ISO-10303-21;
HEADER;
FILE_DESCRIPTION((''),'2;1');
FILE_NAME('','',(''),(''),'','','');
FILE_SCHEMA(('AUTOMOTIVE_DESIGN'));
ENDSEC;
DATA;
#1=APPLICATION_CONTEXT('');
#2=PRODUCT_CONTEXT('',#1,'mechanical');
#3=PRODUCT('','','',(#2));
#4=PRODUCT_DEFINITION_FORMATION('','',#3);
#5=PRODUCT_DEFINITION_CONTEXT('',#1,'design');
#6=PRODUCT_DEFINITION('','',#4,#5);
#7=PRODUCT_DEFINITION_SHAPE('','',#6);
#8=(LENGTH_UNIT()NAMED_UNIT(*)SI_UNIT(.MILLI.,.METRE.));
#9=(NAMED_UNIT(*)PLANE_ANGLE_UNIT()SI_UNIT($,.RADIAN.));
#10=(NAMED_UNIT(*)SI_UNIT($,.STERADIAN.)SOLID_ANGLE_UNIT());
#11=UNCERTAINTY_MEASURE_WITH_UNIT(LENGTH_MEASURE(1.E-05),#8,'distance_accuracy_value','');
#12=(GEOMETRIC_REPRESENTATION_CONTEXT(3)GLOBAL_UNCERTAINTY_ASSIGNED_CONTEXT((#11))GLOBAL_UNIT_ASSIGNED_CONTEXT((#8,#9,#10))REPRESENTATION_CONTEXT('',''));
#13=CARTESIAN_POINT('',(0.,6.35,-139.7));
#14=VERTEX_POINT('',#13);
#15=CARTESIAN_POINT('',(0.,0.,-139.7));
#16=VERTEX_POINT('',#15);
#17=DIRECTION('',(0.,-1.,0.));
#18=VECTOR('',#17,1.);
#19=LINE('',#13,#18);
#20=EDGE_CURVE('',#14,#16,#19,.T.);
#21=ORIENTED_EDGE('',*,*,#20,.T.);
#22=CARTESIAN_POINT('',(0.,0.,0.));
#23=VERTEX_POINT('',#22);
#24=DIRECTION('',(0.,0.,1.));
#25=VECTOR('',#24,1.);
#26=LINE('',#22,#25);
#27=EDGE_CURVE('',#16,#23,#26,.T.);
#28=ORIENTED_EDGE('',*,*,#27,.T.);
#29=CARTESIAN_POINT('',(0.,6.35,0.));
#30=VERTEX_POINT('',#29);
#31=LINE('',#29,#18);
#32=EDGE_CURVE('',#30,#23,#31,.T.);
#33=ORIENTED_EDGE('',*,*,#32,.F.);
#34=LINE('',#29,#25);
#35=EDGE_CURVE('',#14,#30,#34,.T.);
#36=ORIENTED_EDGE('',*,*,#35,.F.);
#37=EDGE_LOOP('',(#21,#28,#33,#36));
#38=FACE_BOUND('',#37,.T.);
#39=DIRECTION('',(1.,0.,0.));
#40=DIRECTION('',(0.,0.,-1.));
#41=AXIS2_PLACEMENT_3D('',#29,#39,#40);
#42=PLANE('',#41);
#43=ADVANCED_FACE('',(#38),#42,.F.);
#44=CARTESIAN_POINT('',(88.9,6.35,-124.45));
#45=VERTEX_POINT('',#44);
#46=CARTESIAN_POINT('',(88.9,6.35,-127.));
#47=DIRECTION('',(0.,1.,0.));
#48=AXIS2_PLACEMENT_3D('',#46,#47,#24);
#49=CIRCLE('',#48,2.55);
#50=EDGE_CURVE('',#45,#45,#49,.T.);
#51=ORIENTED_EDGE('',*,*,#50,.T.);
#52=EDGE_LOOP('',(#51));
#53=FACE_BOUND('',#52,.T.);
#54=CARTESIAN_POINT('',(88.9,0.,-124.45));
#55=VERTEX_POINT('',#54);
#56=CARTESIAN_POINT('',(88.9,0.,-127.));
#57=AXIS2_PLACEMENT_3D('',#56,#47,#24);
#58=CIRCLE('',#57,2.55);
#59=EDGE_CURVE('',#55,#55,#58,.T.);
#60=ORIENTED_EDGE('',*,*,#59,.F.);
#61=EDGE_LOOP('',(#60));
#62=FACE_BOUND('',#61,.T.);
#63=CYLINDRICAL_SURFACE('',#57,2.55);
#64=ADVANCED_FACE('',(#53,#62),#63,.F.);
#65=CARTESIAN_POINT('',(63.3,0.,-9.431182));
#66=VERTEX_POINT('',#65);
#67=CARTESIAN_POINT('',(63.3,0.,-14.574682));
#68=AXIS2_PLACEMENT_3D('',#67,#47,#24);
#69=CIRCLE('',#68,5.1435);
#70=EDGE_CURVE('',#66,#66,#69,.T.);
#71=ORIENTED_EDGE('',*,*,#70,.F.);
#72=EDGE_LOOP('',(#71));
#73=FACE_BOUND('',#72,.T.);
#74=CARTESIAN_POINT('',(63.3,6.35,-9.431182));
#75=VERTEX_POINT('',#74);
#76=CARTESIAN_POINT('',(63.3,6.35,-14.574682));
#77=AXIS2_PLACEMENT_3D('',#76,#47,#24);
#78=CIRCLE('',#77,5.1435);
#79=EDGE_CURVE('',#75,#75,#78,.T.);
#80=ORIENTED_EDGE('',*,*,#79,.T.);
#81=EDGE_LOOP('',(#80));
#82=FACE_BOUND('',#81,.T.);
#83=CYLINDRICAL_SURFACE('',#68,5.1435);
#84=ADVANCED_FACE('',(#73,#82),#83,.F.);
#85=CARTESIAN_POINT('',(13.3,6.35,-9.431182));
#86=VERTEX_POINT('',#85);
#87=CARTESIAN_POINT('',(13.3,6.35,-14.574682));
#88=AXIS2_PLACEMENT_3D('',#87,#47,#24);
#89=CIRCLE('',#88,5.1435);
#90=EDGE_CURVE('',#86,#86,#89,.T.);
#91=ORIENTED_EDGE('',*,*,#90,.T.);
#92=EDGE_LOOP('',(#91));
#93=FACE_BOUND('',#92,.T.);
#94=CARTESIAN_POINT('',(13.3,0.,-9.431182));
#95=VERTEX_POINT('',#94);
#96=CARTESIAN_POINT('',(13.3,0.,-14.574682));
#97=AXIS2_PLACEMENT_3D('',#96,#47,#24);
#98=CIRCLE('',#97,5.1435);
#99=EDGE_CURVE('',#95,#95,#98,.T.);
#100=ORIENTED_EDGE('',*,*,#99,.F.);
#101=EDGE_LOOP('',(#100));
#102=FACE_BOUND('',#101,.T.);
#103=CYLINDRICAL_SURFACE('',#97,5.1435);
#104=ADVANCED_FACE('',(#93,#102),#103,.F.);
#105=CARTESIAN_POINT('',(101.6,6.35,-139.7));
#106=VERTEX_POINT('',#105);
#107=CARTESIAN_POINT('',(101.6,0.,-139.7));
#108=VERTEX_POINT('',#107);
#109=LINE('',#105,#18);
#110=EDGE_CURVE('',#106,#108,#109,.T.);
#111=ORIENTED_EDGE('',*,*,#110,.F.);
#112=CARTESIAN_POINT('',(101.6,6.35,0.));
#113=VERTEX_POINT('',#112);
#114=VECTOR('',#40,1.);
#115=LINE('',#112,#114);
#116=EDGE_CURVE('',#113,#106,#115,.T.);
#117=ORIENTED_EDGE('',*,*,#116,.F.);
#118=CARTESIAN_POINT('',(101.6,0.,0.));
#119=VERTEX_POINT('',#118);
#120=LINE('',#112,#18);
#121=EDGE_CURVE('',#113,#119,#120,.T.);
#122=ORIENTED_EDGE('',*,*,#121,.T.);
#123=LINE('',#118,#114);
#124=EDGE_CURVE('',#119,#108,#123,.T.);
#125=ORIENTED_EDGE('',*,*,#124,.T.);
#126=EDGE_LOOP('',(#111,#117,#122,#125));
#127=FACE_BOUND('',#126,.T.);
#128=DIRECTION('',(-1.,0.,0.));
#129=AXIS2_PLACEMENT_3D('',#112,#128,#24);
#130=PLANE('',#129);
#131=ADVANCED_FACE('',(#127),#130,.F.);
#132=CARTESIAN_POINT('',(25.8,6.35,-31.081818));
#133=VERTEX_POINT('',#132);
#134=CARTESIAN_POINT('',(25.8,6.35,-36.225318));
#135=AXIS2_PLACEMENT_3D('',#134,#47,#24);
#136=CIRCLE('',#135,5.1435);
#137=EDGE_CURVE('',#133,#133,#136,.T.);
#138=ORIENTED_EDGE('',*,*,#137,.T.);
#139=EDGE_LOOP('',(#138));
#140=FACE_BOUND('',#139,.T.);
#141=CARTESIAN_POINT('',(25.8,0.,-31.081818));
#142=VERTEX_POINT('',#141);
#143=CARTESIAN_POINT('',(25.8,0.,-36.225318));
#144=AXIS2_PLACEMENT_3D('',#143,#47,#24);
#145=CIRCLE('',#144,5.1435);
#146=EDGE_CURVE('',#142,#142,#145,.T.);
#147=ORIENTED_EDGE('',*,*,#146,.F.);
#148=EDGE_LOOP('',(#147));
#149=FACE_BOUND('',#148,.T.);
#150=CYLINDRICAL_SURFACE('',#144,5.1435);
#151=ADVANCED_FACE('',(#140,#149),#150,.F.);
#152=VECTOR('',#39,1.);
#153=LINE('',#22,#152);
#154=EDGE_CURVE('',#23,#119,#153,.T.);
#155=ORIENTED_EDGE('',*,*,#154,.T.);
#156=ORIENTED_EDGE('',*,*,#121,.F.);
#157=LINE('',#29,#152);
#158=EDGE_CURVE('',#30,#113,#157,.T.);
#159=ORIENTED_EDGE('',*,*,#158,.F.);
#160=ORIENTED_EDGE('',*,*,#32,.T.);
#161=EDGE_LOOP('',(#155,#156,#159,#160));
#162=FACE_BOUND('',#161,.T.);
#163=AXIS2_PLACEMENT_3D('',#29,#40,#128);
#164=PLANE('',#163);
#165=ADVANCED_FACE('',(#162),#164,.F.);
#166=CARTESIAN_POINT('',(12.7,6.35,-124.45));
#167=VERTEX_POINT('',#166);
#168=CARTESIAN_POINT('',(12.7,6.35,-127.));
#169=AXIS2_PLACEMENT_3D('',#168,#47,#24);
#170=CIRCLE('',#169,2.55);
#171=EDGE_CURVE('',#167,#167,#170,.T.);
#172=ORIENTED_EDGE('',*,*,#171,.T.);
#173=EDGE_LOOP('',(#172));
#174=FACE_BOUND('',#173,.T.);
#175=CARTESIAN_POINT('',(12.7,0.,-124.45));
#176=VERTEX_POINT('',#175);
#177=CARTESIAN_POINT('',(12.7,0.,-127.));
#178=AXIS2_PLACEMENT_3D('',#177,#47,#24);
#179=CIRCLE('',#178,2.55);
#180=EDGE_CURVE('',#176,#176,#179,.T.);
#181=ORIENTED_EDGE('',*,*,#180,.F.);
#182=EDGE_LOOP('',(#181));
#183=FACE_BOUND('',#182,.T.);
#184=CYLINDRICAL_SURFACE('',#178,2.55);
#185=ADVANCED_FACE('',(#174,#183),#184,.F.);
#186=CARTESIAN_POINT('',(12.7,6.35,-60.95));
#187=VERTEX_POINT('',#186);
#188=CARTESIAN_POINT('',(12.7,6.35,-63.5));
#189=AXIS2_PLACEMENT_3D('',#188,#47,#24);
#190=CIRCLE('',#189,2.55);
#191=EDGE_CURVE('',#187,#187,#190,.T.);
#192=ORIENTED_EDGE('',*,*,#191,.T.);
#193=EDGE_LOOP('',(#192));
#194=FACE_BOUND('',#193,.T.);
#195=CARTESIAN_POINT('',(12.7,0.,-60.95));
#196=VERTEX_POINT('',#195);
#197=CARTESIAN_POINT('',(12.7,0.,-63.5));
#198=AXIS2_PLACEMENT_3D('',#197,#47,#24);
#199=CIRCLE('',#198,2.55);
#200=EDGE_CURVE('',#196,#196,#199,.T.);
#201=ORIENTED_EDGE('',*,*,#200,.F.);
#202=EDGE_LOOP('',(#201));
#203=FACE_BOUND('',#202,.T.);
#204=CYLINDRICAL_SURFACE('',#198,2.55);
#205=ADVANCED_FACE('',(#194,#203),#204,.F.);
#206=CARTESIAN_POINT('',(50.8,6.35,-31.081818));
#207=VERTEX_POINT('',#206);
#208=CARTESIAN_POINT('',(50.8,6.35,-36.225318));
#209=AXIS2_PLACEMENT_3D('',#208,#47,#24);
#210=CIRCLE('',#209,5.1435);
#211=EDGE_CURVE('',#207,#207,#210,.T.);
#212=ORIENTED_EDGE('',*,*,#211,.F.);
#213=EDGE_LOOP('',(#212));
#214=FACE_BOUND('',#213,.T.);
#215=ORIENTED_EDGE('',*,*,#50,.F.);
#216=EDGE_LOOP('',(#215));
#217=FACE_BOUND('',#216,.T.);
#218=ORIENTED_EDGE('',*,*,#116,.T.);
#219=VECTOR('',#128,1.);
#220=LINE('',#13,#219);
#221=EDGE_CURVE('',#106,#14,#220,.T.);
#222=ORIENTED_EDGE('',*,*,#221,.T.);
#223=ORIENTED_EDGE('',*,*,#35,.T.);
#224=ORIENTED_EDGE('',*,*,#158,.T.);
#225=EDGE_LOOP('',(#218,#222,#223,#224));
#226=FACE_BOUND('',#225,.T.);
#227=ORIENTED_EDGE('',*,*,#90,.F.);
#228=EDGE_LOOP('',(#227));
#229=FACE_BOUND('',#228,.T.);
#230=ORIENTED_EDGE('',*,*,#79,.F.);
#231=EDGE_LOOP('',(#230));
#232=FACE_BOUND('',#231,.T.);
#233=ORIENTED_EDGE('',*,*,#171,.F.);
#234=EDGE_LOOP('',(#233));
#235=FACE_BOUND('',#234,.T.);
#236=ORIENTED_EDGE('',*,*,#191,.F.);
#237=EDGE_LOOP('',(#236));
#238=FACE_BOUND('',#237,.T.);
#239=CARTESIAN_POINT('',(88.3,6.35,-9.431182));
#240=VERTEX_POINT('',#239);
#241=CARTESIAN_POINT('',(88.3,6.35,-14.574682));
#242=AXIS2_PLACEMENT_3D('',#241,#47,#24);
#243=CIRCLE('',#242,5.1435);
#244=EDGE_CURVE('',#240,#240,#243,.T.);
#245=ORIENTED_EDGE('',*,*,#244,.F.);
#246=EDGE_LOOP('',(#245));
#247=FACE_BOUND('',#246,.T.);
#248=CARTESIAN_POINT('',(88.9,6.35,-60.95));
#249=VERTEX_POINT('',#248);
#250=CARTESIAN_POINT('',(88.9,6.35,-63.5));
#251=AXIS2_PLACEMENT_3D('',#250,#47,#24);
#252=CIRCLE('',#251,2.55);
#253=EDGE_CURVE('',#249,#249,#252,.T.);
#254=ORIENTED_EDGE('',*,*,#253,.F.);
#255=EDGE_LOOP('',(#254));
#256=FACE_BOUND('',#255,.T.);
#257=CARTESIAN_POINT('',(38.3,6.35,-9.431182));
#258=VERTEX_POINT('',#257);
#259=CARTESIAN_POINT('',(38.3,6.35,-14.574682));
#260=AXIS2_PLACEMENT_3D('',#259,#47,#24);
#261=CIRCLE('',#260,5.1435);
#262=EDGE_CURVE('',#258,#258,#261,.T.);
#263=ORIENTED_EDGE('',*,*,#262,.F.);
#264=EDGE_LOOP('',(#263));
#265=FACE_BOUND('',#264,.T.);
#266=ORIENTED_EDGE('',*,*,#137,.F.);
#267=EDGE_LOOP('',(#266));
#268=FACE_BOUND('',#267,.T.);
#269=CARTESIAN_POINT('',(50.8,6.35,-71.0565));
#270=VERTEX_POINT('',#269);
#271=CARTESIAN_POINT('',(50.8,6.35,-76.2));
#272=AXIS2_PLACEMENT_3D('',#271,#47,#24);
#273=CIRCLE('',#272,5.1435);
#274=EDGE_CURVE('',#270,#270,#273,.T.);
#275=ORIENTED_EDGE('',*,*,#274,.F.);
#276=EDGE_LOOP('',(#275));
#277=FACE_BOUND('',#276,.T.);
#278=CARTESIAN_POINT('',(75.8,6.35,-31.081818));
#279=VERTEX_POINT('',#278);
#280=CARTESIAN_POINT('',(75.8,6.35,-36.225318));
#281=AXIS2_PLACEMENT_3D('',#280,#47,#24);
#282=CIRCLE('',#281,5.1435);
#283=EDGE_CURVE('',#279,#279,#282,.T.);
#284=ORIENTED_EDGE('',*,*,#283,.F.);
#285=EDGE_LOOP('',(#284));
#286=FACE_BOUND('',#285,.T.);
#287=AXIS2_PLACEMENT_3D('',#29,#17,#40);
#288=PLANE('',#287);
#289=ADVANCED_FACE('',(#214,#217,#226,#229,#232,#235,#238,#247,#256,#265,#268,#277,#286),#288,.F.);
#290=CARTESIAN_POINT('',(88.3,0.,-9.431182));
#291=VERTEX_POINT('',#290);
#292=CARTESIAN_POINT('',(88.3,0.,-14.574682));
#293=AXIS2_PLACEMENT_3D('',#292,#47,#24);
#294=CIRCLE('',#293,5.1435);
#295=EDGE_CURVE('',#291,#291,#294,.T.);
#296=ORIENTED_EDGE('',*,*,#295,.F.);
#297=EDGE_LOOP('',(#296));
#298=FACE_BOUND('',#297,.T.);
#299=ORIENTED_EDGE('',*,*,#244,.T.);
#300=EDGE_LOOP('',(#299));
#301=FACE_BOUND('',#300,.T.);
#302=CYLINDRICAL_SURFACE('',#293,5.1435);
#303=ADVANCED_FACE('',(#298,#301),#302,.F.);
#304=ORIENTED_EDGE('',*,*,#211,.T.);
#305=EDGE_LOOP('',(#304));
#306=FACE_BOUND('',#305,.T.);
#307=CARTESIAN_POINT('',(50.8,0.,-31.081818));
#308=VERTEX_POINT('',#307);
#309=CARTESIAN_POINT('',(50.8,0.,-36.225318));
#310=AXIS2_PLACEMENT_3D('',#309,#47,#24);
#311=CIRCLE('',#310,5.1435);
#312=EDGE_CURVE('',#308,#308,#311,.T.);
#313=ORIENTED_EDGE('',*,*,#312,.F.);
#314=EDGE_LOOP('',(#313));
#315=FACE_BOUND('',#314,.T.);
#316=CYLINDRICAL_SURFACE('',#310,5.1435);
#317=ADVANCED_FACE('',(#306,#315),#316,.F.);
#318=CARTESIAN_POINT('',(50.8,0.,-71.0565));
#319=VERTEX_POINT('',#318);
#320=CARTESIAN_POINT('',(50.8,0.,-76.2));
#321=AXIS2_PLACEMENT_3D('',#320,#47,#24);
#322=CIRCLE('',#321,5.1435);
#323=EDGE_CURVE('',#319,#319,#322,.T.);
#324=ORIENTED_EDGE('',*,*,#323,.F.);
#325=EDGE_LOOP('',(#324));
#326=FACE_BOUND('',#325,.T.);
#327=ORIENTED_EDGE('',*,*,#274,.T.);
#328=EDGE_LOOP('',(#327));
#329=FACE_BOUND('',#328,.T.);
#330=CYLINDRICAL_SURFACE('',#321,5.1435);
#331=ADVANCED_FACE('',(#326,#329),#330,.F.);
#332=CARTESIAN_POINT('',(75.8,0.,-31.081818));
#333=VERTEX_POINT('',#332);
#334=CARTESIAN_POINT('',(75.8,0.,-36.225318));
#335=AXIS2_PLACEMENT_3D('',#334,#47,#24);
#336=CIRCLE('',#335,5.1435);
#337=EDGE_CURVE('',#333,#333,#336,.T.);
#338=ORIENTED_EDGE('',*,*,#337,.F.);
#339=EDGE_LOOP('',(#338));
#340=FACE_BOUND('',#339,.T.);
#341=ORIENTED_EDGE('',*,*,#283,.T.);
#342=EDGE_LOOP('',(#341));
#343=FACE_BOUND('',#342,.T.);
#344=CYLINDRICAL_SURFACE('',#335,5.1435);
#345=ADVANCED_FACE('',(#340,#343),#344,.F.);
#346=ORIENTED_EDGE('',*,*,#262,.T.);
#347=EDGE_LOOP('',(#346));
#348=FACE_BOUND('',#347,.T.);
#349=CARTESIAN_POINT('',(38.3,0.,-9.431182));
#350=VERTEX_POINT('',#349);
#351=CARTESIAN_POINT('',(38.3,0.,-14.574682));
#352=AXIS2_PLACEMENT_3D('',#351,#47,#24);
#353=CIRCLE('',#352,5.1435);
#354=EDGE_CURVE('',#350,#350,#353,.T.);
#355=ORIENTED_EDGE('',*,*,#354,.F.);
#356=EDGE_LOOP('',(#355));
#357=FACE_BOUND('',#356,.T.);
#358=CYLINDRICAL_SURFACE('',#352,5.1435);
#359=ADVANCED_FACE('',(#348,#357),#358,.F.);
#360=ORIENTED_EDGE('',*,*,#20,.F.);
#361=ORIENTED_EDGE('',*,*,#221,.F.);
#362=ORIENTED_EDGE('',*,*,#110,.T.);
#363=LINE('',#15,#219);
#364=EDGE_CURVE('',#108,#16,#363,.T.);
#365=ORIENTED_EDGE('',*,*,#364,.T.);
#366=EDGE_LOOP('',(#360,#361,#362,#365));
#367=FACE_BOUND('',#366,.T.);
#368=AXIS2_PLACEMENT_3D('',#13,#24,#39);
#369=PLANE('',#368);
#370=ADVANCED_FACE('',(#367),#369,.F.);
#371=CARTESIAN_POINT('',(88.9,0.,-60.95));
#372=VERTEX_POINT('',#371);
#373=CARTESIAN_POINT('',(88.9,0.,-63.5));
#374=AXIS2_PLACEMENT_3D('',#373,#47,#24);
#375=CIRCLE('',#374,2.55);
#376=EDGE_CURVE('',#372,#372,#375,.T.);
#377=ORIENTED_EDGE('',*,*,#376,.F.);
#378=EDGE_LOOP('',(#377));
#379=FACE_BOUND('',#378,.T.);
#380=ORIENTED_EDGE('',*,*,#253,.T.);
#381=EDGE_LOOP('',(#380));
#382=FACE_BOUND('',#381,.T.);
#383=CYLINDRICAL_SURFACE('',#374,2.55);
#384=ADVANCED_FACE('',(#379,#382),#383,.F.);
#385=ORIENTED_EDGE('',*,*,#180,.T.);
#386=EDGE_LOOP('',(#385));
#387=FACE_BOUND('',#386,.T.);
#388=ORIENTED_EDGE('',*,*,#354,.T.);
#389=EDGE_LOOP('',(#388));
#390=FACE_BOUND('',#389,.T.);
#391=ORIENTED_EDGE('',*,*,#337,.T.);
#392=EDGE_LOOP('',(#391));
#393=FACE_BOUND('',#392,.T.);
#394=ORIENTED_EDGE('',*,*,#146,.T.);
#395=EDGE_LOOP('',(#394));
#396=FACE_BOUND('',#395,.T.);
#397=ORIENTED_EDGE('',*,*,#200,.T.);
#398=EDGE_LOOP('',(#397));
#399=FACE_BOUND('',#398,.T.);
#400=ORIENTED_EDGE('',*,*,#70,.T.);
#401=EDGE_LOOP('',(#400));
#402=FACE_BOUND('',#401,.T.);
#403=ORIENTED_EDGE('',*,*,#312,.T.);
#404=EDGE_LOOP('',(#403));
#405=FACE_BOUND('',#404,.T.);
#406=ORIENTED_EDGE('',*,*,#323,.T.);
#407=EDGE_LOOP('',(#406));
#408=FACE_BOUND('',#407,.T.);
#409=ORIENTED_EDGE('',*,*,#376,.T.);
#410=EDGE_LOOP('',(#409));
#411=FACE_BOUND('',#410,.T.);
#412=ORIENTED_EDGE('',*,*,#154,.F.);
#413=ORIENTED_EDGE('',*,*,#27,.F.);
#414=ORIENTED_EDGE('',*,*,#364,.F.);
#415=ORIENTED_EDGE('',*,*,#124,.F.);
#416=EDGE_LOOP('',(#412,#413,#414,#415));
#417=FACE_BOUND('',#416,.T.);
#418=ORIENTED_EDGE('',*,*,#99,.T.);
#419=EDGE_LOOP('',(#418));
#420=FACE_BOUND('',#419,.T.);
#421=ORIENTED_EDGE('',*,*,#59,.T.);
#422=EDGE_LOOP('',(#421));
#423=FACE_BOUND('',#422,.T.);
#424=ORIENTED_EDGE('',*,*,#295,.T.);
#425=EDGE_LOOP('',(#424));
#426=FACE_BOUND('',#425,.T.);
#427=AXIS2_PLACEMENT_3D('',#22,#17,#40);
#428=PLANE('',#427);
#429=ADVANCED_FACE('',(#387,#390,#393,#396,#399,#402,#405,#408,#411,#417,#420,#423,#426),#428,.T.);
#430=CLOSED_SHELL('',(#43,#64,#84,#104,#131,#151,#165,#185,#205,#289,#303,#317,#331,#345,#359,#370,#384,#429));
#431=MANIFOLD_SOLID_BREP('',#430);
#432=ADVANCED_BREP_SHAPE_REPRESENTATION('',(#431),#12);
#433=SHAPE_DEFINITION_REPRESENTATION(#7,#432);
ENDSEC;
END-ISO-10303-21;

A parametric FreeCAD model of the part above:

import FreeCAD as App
import Part
import Sketcher
Q = App.Units.Quantity

doc = App.newDocument("Part")
body = doc.addObject("PartDesign::Body", "Body")

sketch1 = body.newObject("Sketcher::SketchObject", "Sketch")
sketch1.AttachmentSupport = (doc.getObject("XZ_Plane"), [""])
sketch1.MapMode = "FlatFace"
sketch1.addGeometry(Part.LineSegment(App.Vector(0, -140, 0), App.Vector(0, 0, 0)), False)
sketch1.addGeometry(Part.LineSegment(App.Vector(0, 0, 0), App.Vector(102, 0, 0)), False)
sketch1.addGeometry(Part.LineSegment(App.Vector(102, 0, 0), App.Vector(102, -140, 0)), False)
sketch1.addGeometry(Part.LineSegment(App.Vector(102, -140, 0), App.Vector(0, -140, 0)), False)
sketch1.addConstraint(Sketcher.Constraint("Coincident", 0, 2, 1, 1))
sketch1.addConstraint(Sketcher.Constraint("Coincident", 1, 2, 2, 1))
sketch1.addConstraint(Sketcher.Constraint("Coincident", 2, 2, 3, 1))
sketch1.addConstraint(Sketcher.Constraint("Coincident", 3, 2, 0, 1))
sketch1.addConstraint(Sketcher.Constraint("Vertical", 0))
sketch1.addConstraint(Sketcher.Constraint("Horizontal", 1))
sketch1.addConstraint(Sketcher.Constraint("Vertical", 2))
sketch1.addConstraint(Sketcher.Constraint("Horizontal", 3))
sketch1.addConstraint(Sketcher.Constraint("Coincident", 0, 2, -1, 1))
sketch1.addConstraint(Sketcher.Constraint("DistanceX", 1, 1, 1, 2, Q("4 in")))
sketch1.addConstraint(Sketcher.Constraint("DistanceY", 0, 1, 0, 2, Q("5.5 in")))
pad1 = body.newObject("PartDesign::Pad", "Pad")
pad1.Profile = sketch1
pad1.Length = Q("0.25 in")
pad1.Reversed = True

sketch2 = body.newObject("Sketcher::SketchObject", "Sketch001")
sketch2.AttachmentSupport = (doc.getObject("XZ_Plane"), [""])
sketch2.MapMode = "FlatFace"
sketch2.AttachmentOffset = App.Placement(App.Vector(0, 0, -0.25 * 25.4), App.Rotation())
sketch2.addGeometry(Part.Circle(App.Vector(13.3, -14.6, 0), App.Vector(0, 0, 1), 5.1), False)
sketch2.addGeometry(Part.Circle(App.Vector(38.3, -14.6, 0), App.Vector(0, 0, 1), 5.1), False)
sketch2.addGeometry(Part.Circle(App.Vector(63.3, -14.6, 0), App.Vector(0, 0, 1), 5.1), False)
sketch2.addGeometry(Part.Circle(App.Vector(88.3, -14.6, 0), App.Vector(0, 0, 1), 5.1), False)
sketch2.addGeometry(Part.Circle(App.Vector(75.8, -36.2, 0), App.Vector(0, 0, 1), 5.1), False)
sketch2.addGeometry(Part.Circle(App.Vector(50.8, -36.2, 0), App.Vector(0, 0, 1), 5.1), False)
sketch2.addGeometry(Part.Circle(App.Vector(25.8, -36.2, 0), App.Vector(0, 0, 1), 5.1), False)
sketch2.addGeometry(Part.Circle(App.Vector(12.7, -63.5, 0), App.Vector(0, 0, 1), 2.5), False)
sketch2.addGeometry(Part.Circle(App.Vector(12.7, -127, 0), App.Vector(0, 0, 1), 2.5), False)
sketch2.addGeometry(Part.Circle(App.Vector(88.9, -63.5, 0), App.Vector(0, 0, 1), 2.5), False)
sketch2.addGeometry(Part.Circle(App.Vector(88.9, -127, 0), App.Vector(0, 0, 1), 2.5), False)
sketch2.addGeometry(Part.Circle(App.Vector(50.8, -76.2, 0), App.Vector(0, 0, 1), 5.1), False)
sketch2.addConstraint(Sketcher.Constraint("Equal", 0, 1))
sketch2.addConstraint(Sketcher.Constraint("Equal", 1, 2))
sketch2.addConstraint(Sketcher.Constraint("Equal", 2, 3))
sketch2.addConstraint(Sketcher.Constraint("Equal", 3, 4))
sketch2.addConstraint(Sketcher.Constraint("Equal", 4, 5))
sketch2.addConstraint(Sketcher.Constraint("Equal", 5, 6))
sketch2.addConstraint(Sketcher.Constraint("Equal", 7, 8))
sketch2.addConstraint(Sketcher.Constraint("Equal", 8, 9))
sketch2.addConstraint(Sketcher.Constraint("Equal", 9, 10))
sketch2.addConstraint(Sketcher.Constraint("Equal", 6, 11))
sketch2.addConstraint(Sketcher.Constraint("Horizontal", 0, 3, 1, 3))
sketch2.addConstraint(Sketcher.Constraint("Horizontal", 1, 3, 2, 3))
sketch2.addConstraint(Sketcher.Constraint("Horizontal", 2, 3, 3, 3))
sketch2.addConstraint(Sketcher.Constraint("Horizontal", 4, 3, 5, 3))
sketch2.addConstraint(Sketcher.Constraint("Horizontal", 5, 3, 6, 3))
sketch2.addConstraint(Sketcher.Constraint("Horizontal", 7, 3, 9, 3))
sketch2.addConstraint(Sketcher.Constraint("Horizontal", 8, 3, 10, 3))
sketch2.addConstraint(Sketcher.Constraint("Vertical", 7, 3, 8, 3))
sketch2.addConstraint(Sketcher.Constraint("Vertical", 9, 3, 10, 3))
sketch2.addConstraint(Sketcher.Constraint("Vertical", 5, 3, 11, 3))
sketch2.addConstraint(Sketcher.Constraint("Diameter", 0, Q("0.405 in")))
sketch2.addConstraint(Sketcher.Constraint("DistanceX", -1, 1, 5, 3, Q("2 in")))
sketch2.addConstraint(Sketcher.Constraint("DistanceY", 8, 3, -1, 1, Q("5 in")))
sketch2.addConstraint(Sketcher.Constraint("DistanceY", 11, 3, -1, 1, Q("3 in")))
sketch2.addConstraint(Sketcher.Constraint("DistanceX", 8, 3, 10, 3, Q("3 in")))
sketch2.addConstraint(Sketcher.Constraint("DistanceX", -1, 1, 7, 3, Q("0.5 in")))
sketch2.addConstraint(Sketcher.Constraint("DistanceY", 7, 3, -1, 1, Q("2.5 in")))
sketch2.addConstraint(Sketcher.Constraint("Diameter", 7, 5.1))
sketch2.addConstraint(Sketcher.Constraint("DistanceX", -1, 1, 0, 3, 13.3))
sketch2.addConstraint(Sketcher.Constraint("DistanceX", -1, 1, 1, 3, 38.3))
sketch2.addConstraint(Sketcher.Constraint("DistanceX", -1, 1, 2, 3, 63.3))
sketch2.addConstraint(Sketcher.Constraint("DistanceX", -1, 1, 3, 3, 88.3))
sketch2.addConstraint(Sketcher.Constraint("DistanceX", -1, 1, 4, 3, 75.8))
sketch2.addConstraint(Sketcher.Constraint("DistanceX", -1, 1, 6, 3, 25.8))
sketch2.addConstraint(Sketcher.Constraint("DistanceY", 0, 3, -1, 1, 14.574682))
sketch2.addConstraint(Sketcher.Constraint("DistanceY", 4, 3, -1, 1, 36.225318))
pocket1 = body.newObject("PartDesign::Pocket", "Pocket")
pocket1.Profile = sketch2
pocket1.Type = "ThroughAll"
pocket1.Reversed = True

doc.recompute()
